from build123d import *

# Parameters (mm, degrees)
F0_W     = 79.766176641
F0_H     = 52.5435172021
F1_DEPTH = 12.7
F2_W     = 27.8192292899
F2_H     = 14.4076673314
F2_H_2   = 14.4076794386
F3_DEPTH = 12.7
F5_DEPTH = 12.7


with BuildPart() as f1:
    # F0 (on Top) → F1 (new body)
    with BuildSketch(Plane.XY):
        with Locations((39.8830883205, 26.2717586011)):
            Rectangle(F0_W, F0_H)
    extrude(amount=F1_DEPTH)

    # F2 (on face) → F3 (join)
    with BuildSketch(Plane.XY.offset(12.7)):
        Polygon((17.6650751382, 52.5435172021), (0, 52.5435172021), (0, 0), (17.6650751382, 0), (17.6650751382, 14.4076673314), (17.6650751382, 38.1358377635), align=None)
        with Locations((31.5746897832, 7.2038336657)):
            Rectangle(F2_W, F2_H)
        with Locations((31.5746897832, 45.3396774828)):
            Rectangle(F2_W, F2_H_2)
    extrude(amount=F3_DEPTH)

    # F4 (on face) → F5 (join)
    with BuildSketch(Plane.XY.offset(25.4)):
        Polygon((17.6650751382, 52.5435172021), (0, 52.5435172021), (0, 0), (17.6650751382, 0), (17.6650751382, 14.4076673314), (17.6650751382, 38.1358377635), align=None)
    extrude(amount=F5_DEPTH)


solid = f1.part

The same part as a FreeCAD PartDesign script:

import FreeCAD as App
import Part
import Sketcher
Q = App.Units.Quantity


def add_polygon(sketch, points):
    """Adds a closed chain of lines whose ends are joined by coincident constraints."""
    first, n = sketch.GeometryCount, len(points)
    for a, b in zip(points, points[1:] + points[:1]):
        sketch.addGeometry(Part.LineSegment(App.Vector(*a, 0), App.Vector(*b, 0)), False)
    for i in range(n):
        sketch.addConstraint(Sketcher.Constraint("Coincident", first + i, 2, first + (i + 1) % n, 1))

doc = App.newDocument("Part")
params = doc.addObject("Spreadsheet::Sheet", "Params")
for row, (alias, value) in enumerate([
    ("pad1_length", "0.5 in"),
    ("pad2_length", "0.5 in"),
    ("pad3_length", "0.5 in"),
], start=1):
    params.set(f"A{row}", alias)
    params.set(f"B{row}", "=" + value)
    params.setAlias(f"B{row}", alias)

body = doc.addObject("PartDesign::Body", "Body")

sketch1 = body.newObject("Sketcher::SketchObject", "Sketch")
sketch1.AttachmentSupport = (doc.getObject("XY_Plane"), [""])
sketch1.MapMode = "FlatFace"
add_polygon(sketch1, [(0, 53), (0, 0), (80, 0), (80, 53)])
sketch1.addConstraint([
    Sketcher.Constraint("Vertical", 0),
    Sketcher.Constraint("Horizontal", 1),
    Sketcher.Constraint("Vertical", 2),
    Sketcher.Constraint("Horizontal", 3),
    Sketcher.Constraint("Coincident", 0, 2, -1, 1),
    Sketcher.Constraint("DistanceX", 1, 1, 1, 2, Q("79.766177 mm")),
    Sketcher.Constraint("DistanceY", 0, 2, 0, 1, Q("52.543517 mm")),
])
pad1 = body.newObject("PartDesign::Pad", "Pad")
pad1.Profile = sketch1
pad1.setExpression("Length", "Params.pad1_length")

sketch2 = body.newObject("Sketcher::SketchObject", "Sketch001")
sketch2.AttachmentSupport = (doc.getObject("XY_Plane"), [""])
sketch2.MapMode = "FlatFace"
sketch2.AttachmentOffset = App.Placement(App.Vector(0, 0, 0.5 * 25.4), App.Rotation())
add_polygon(sketch2, [(0, 53), (0, 0), (45, 0), (45, 14), (18, 14), (18, 38), (45, 38), (45, 53)])
sketch2.addConstraint([
    Sketcher.Constraint("Vertical", 0),
    Sketcher.Constraint("Horizontal", 1),
    Sketcher.Constraint("Vertical", 2),
    Sketcher.Constraint("Horizontal", 3),
    Sketcher.Constraint("Vertical", 4),
    Sketcher.Constraint("Horizontal", 5),
    Sketcher.Constraint("Vertical", 6),
    Sketcher.Constraint("Horizontal", 7),
    Sketcher.Constraint("Coincident", 0, 2, -1, 1),
    Sketcher.Constraint("Vertical", 2, 2, 5, 2),
    Sketcher.Constraint("DistanceX", 3, 2, 3, 1, Q("27.819229 mm")),
    Sketcher.Constraint("DistanceY", 4, 1, 4, 2, Q("23.72817 mm")),
    Sketcher.Constraint("DistanceY", 6, 1, 6, 2, Q("14.407679 mm")),
    Sketcher.Constraint("DistanceX", 1, 1, 1, 2, Q("45.484304 mm")),
    Sketcher.Constraint("DistanceY", 0, 2, 0, 1, Q("52.543517 mm")),
])
pad2 = body.newObject("PartDesign::Pad", "Pad001")
pad2.Profile = sketch2
pad2.setExpression("Length", "Params.pad2_length")

sketch3 = body.newObject("Sketcher::SketchObject", "Sketch002")
sketch3.AttachmentSupport = (doc.getObject("XY_Plane"), [""])
sketch3.MapMode = "FlatFace"
sketch3.AttachmentOffset = App.Placement(App.Vector(0, 0, 1 * 25.4), App.Rotation())
add_polygon(sketch3, [(18, 53), (0, 53), (0, 0), (18, 0)])
sketch3.addConstraint([
    Sketcher.Constraint("Horizontal", 0),
    Sketcher.Constraint("Vertical", 1),
    Sketcher.Constraint("Horizontal", 2),
    Sketcher.Constraint("Vertical", 3),
    Sketcher.Constraint("Coincident", 1, 2, -1, 1),
    Sketcher.Constraint("DistanceX", 0, 2, 0, 1, Q("17.665075 mm")),
    Sketcher.Constraint("DistanceY", 1, 2, 1, 1, Q("52.543517 mm")),
])
pad3 = body.newObject("PartDesign::Pad", "Pad002")
pad3.Profile = sketch3
pad3.setExpression("Length", "Params.pad3_length")

doc.recompute()
